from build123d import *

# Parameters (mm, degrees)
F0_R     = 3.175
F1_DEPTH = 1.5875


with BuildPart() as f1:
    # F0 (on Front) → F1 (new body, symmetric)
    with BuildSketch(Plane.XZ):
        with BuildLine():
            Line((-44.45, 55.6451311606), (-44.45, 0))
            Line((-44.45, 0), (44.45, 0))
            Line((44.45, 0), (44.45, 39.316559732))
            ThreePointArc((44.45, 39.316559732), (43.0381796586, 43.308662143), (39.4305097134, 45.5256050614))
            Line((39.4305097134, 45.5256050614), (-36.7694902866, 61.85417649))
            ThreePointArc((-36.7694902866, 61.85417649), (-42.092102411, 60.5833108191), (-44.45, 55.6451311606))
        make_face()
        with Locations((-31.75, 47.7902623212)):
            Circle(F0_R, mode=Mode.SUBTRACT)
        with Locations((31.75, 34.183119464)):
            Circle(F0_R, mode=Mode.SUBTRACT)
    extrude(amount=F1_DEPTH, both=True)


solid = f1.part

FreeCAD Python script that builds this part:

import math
import FreeCAD as App
import Part
import Sketcher

V = App.Vector
Q = App.Units.Quantity

doc = App.newDocument("Part")
body = doc.addObject("PartDesign::Body", "Body")

sketch1 = doc.addObject("Sketcher::SketchObject", "Sketch")
body.addObject(sketch1)
sketch1.AttachmentSupport = (doc.XZ_Plane, [""])
sketch1.MapMode = "FlatFace"
sketch1.addGeometry(Part.LineSegment(V(-44.45, 55.645131, 0), V(-44.45, 0, 0)), False)
sketch1.addGeometry(Part.LineSegment(V(-44.45, 0, 0), V(44.45, 0, 0)), False)
sketch1.addGeometry(Part.LineSegment(V(44.45, 0, 0), V(44.45, 39.31656, 0)), False)
sketch1.addGeometry(Part.ArcOfCircle(Part.Circle(V(38.1, 39.31656, 0), V(0, 0, 1), 6.35), math.radians(0), math.radians(77.905243)), False)
sketch1.addGeometry(Part.LineSegment(V(39.43051, 45.525605, 0), V(-36.76949, 61.854176, 0)), False)
sketch1.addGeometry(Part.ArcOfCircle(Part.Circle(V(-38.1, 55.645131, 0), V(0, 0, 1), 6.35), math.radians(77.905243), math.radians(180)), False)
sketch1.addGeometry(Part.Circle(V(31.75, 34.183119, 0), V(0, 0, 1), 3.175), False)
sketch1.addGeometry(Part.Circle(V(-31.75, 47.790262, 0), V(0, 0, 1), 3.175), False)
sketch1.addConstraint(Sketcher.Constraint("Coincident", 0, 2, 1, 1))
sketch1.addConstraint(Sketcher.Constraint("Coincident", 1, 2, 2, 1))
sketch1.addConstraint(Sketcher.Constraint("Tangent", 2, 2, 3, 1))
sketch1.addConstraint(Sketcher.Constraint("Tangent", 3, 2, 4, 1))
sketch1.addConstraint(Sketcher.Constraint("Tangent", 4, 2, 5, 1))
sketch1.addConstraint(Sketcher.Constraint("Tangent", 5, 2, 0, 1))
sketch1.addConstraint(Sketcher.Constraint("Vertical", 0))
sketch1.addConstraint(Sketcher.Constraint("Horizontal", 1))
sketch1.addConstraint(Sketcher.Constraint("Vertical", 2))
sketch1.addConstraint(Sketcher.Constraint("Equal", 3, 5))
sketch1.addConstraint(Sketcher.Constraint("Equal", 6, 7))
sketch1.addConstraint(Sketcher.Constraint("Symmetric", 0, 2, 1, 2, -1, 1))
sketch1.addConstraint(Sketcher.Constraint("Diameter", 6, Q("0.25 in")))
sketch1.addConstraint(Sketcher.Constraint("Radius", 3, Q("0.25 in")))
sketch1.addConstraint(Sketcher.Constraint("DistanceX", 1, 1, 1, 2, Q("3.5 in")))
sketch1.addConstraint(Sketcher.Constraint("DistanceX", 0, 2, 6, 3, Q("3 in")))
sketch1.addConstraint(Sketcher.Constraint("DistanceX", 7, 3, 1, 2, Q("3 in")))
sketch1.addConstraint(Sketcher.Constraint("DistanceY", 0, 2, 0, 1, Q("55.645131 mm")))
sketch1.addConstraint(Sketcher.Constraint("DistanceY", 2, 1, 2, 2, Q("39.31656 mm")))
sketch1.addConstraint(Sketcher.Constraint("DistanceY", -1, 1, 6, 3, Q("34.183119 mm")))
sketch1.addConstraint(Sketcher.Constraint("DistanceY", 7, 3, 5, 3, Q("7.854869 mm")))
pad1 = doc.addObject("PartDesign::Pad", "Pad")
body.addObject(pad1)
pad1.Profile = sketch1
pad1.Length = Q("0.125 in")
pad1.Midplane = True

doc.recompute()
